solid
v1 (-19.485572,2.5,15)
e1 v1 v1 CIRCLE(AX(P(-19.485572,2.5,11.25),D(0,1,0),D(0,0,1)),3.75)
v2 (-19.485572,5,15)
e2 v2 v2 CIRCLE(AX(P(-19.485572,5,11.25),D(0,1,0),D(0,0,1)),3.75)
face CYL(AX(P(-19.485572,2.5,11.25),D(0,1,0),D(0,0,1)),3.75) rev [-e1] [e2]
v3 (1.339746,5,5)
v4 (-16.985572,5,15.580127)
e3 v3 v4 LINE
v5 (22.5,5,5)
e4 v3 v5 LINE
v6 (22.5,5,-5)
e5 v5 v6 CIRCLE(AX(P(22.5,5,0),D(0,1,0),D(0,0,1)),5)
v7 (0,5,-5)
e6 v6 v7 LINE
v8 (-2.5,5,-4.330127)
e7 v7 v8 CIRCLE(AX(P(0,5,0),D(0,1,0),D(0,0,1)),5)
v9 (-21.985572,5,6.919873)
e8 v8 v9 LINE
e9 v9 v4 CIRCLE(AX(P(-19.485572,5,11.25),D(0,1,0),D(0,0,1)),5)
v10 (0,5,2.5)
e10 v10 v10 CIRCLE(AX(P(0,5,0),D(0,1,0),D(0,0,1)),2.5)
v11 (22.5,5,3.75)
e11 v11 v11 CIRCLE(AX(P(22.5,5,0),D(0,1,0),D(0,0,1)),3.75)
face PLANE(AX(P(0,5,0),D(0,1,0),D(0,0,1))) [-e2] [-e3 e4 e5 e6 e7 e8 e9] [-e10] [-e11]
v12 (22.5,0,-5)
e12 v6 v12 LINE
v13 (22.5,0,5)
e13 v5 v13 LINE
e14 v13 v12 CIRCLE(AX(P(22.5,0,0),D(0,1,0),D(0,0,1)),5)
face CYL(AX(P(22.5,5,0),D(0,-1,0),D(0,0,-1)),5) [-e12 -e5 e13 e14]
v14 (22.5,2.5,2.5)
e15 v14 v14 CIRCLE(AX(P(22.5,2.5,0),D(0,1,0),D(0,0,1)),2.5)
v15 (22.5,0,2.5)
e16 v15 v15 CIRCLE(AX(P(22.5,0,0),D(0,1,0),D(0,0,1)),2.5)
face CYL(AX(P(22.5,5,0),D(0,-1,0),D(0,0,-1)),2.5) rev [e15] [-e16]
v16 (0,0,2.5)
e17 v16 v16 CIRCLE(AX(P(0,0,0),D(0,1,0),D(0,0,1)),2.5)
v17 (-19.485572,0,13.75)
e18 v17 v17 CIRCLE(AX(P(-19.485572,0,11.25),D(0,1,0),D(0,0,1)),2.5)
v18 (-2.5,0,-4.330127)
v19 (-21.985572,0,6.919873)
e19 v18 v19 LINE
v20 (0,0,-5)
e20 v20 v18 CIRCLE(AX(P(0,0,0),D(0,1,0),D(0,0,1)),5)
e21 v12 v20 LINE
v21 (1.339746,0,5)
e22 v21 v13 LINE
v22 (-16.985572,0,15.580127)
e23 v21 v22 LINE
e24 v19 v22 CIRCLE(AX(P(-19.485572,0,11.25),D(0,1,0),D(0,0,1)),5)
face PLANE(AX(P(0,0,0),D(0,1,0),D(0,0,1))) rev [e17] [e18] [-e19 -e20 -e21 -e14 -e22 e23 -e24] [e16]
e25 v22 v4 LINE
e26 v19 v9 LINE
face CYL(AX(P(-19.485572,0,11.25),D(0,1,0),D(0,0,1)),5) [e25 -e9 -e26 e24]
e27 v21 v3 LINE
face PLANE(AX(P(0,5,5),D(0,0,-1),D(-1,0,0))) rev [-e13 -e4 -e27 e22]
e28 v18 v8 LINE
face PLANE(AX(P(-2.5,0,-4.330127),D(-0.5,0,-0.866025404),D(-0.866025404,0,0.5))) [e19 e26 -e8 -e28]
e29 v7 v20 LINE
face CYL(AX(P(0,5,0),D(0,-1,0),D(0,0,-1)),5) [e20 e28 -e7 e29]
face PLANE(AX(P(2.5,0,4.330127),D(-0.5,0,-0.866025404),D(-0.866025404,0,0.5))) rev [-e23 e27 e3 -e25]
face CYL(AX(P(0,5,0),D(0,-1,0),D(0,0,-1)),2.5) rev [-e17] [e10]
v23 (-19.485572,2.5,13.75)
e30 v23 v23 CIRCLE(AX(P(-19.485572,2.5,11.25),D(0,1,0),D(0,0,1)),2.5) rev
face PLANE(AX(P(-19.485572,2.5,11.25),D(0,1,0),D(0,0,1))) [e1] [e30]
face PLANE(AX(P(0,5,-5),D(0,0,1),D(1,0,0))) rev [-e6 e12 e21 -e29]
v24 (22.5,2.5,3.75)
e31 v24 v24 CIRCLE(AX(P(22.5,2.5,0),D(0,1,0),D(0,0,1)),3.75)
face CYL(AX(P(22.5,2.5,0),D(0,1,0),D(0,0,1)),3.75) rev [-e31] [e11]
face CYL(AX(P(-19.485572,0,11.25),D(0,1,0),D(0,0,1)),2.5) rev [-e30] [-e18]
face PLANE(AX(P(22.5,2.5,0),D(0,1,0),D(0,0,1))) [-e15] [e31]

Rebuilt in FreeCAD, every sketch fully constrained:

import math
import FreeCAD as App
import Part
import Sketcher
from FreeCAD import Vector
Q = App.Units.Quantity

doc = App.newDocument("Part")
body = doc.addObject("PartDesign::Body", "Body")

sketch1 = body.newObject("Sketcher::SketchObject", "Sketch")
sketch1.AttachmentSupport = (doc.getObject("XZ_Plane"), [""])
sketch1.MapMode = "FlatFace"
sketch1.addGeometry([
    Part.LineSegment(Vector(22.5, -5, 0), Vector(0, -5, 0)),
    Part.ArcOfCircle(Part.Circle(Vector(0, 0, 0), Vector(0, 0, 1), 5), math.radians(90), math.radians(270)),
    Part.LineSegment(Vector(0, 5, 0), Vector(22.5, 5, 0)),
    Part.ArcOfCircle(Part.Circle(Vector(22.5, 0, 0), Vector(0, 0, 1), 5), math.radians(-90), math.radians(90)),
    Part.Circle(Vector(22.5, 0, 0), Vector(0, 0, 1), 2.5),
    Part.Circle(Vector(0, 0, 0), Vector(0, 0, 1), 2.5),
], False)
sketch1.addConstraint([
    Sketcher.Constraint("Tangent", 0, 2, 1, 2),
    Sketcher.Constraint("Tangent", 1, 1, 2, 1),
    Sketcher.Constraint("Tangent", 2, 2, 3, 2),
    Sketcher.Constraint("Tangent", 3, 1, 0, 1),
    Sketcher.Constraint("Horizontal", 0),
    Sketcher.Constraint("Horizontal", 2),
    Sketcher.Constraint("Coincident", 1, 3, -1, 1),
    Sketcher.Constraint("Coincident", 5, 3, -1, 1),
    Sketcher.Constraint("Coincident", 4, 3, 3, 3),
    Sketcher.Constraint("Equal", 4, 5),
    Sketcher.Constraint("Diameter", 4, Q("5 mm")),
    Sketcher.Constraint("Radius", 1, Q("5 mm")),
    Sketcher.Constraint("DistanceX", 0, 2, 0, 1, Q("22.5 mm")),
])
pad1 = body.newObject("PartDesign::Pad", "Pad")
pad1.Profile = sketch1
pad1.Length = 5
pad1.Reversed = True

sketch2 = body.newObject("Sketcher::SketchObject", "Sketch001")
sketch2.AttachmentSupport = (doc.getObject("XZ_Plane"), [""])
sketch2.MapMode = "FlatFace"
sketch2.addGeometry([
    Part.LineSegment(Vector(-17, 15.6, 0), Vector(2.5, 4.3, 0)),
    Part.ArcOfCircle(Part.Circle(Vector(0, 0, 0), Vector(0, 0, 1), 5), math.radians(-120), math.radians(60)),
    Part.LineSegment(Vector(-2.5, -4.3, 0), Vector(-22, 6.9, 0)),
    Part.ArcOfCircle(Part.Circle(Vector(-19.5, 11.2, 0), Vector(0, 0, 1), 5), math.radians(60), math.radians(240)),
    Part.Circle(Vector(-19.5, 11.2, 0), Vector(0, 0, 1), 2.5),
    Part.Circle(Vector(0, 0, 0), Vector(0, 0, 1), 2.5),
], False)
sketch2.addConstraint([
    Sketcher.Constraint("Tangent", 0, 2, 1, 2),
    Sketcher.Constraint("Tangent", 1, 1, 2, 1),
    Sketcher.Constraint("Tangent", 2, 2, 3, 2),
    Sketcher.Constraint("Tangent", 3, 1, 0, 1),
    Sketcher.Constraint("Coincident", 1, 3, -1, 1),
    Sketcher.Constraint("Coincident", 5, 3, -1, 1),
    Sketcher.Constraint("Coincident", 4, 3, 3, 3),
    Sketcher.Constraint("Equal", 1, 3),
    Sketcher.Constraint("Equal", 4, 5),
    Sketcher.Constraint("Diameter", 4, Q("5 mm")),
    Sketcher.Constraint("Radius", 1, Q("5 mm")),
    Sketcher.Constraint("Angle", 0, Q("-30 deg")),
    Sketcher.Constraint("Distance", 0, Q("22.5 mm")),
])
pad2 = body.newObject("PartDesign::Pad", "Pad001")
pad2.Profile = sketch2
pad2.Length = 5
pad2.Reversed = True

sketch3 = body.newObject("Sketcher::SketchObject", "Sketch002")
sketch3.AttachmentSupport = (doc.getObject("XZ_Plane"), [""])
sketch3.MapMode = "FlatFace"
sketch3.AttachmentOffset = App.Placement(Vector(0, 0, -5), App.Rotation())
sketch3.addGeometry([
    Part.Circle(Vector(22.5, 0, 0), Vector(0, 0, 1), 3.8),
    Part.Circle(Vector(-19.5, 11.2, 0), Vector(0, 0, 1), 3.8),
], False)
sketch3.addConstraint([
    Sketcher.Constraint("Equal", 0, 1),
    Sketcher.Constraint("PointOnObject", 0, 3, -1),
    Sketcher.Constraint("Diameter", 0, Q("7.5 mm")),
    Sketcher.Constraint("DistanceX", -1, 1, 0, 3, Q("22.5 mm")),
    Sketcher.Constraint("DistanceY", -1, 1, 1, 3, Q("11.25 mm")),
    Sketcher.Constraint("DistanceX", 1, 3, -1, 1, Q("19.485572 mm")),
])
pocket1 = body.newObject("PartDesign::Pocket", "Pocket")
pocket1.Profile = sketch3
pocket1.Length = 2.5
pocket1.Reversed = True

doc.recompute()
